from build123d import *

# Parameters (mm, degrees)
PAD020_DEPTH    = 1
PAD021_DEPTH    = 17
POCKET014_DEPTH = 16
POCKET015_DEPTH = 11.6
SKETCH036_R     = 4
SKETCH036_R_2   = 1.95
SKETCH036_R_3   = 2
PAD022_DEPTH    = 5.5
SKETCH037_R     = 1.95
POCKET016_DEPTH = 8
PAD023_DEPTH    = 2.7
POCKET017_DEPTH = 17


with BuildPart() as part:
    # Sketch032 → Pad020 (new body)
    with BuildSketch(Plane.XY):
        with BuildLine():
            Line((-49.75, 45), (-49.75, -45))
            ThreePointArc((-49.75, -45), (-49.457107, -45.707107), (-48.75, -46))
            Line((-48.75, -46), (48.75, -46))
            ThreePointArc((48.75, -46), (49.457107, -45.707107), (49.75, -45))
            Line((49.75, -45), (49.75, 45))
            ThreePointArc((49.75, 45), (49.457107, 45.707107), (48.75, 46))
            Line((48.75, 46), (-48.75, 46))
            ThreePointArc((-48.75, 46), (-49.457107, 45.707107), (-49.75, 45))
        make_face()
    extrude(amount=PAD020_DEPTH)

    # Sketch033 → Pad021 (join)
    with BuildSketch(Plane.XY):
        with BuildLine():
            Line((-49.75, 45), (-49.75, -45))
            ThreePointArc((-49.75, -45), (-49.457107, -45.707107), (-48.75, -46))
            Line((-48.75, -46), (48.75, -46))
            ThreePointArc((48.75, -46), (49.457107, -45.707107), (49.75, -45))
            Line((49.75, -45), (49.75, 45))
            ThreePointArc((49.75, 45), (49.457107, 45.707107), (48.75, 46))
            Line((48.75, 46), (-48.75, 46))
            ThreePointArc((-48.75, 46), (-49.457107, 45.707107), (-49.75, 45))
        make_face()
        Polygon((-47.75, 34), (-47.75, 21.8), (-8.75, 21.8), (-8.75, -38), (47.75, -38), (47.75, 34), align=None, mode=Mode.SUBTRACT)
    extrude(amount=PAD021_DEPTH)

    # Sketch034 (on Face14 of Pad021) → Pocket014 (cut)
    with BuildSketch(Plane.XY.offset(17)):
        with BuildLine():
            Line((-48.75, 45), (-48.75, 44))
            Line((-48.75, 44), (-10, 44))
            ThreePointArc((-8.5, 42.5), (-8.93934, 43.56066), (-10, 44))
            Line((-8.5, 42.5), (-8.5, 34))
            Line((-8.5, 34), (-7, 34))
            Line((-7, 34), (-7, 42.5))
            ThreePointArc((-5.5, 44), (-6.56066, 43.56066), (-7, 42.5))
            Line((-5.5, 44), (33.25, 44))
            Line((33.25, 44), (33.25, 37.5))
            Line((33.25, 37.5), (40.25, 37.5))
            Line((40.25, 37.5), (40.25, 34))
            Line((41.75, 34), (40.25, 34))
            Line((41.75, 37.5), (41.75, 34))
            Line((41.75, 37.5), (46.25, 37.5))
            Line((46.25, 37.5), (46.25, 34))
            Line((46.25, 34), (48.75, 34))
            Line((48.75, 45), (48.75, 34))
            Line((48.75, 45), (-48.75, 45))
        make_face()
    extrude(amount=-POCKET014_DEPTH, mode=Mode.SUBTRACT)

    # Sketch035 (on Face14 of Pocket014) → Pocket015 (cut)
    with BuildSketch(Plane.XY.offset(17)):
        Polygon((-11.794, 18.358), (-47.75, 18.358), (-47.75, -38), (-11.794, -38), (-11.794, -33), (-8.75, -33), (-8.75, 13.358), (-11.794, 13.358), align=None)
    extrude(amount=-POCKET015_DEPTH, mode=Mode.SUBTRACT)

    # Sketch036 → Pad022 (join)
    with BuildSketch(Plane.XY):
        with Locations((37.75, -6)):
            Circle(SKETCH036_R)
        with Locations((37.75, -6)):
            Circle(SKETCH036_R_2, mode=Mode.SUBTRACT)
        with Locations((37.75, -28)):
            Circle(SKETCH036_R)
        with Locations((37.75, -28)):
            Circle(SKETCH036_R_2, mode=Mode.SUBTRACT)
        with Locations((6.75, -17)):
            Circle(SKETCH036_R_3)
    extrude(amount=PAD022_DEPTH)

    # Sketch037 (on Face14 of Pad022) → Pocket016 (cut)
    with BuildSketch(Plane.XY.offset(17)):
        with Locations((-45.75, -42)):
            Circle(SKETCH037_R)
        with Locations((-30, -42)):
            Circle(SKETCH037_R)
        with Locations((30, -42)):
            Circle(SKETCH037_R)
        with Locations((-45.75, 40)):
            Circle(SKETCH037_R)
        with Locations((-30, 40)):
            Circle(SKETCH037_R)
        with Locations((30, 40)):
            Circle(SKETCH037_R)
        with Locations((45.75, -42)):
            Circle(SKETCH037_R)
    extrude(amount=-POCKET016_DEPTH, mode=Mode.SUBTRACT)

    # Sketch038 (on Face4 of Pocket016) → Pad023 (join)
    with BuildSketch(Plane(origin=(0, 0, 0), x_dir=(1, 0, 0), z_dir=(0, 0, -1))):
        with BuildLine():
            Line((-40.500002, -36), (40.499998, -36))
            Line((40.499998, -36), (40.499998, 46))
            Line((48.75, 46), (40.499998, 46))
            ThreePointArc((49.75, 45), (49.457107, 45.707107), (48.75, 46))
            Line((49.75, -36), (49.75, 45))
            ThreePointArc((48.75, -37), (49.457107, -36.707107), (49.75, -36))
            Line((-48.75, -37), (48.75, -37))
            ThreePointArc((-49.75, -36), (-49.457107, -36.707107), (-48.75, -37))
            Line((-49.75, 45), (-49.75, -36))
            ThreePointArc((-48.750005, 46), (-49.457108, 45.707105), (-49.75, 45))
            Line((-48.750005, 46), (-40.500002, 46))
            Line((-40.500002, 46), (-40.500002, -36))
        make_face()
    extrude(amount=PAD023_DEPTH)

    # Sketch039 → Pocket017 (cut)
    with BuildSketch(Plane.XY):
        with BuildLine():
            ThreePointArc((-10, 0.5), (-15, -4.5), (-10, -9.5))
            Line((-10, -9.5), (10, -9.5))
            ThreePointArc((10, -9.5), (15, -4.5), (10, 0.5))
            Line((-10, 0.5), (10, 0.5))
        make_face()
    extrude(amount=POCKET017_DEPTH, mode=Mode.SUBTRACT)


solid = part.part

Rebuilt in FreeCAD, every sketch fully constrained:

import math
import FreeCAD as App
import Part
import Sketcher
Q = App.Units.Quantity

doc = App.newDocument("Part")
body = doc.addObject("PartDesign::Body", "Body")

sketch1 = doc.addObject("Sketcher::SketchObject", "Sketch")
body.addObject(sketch1)
sketch1.AttachmentSupport = (doc.XY_Plane, [""])
sketch1.MapMode = "FlatFace"
sketch1.addGeometry([
    Part.LineSegment(App.Vector(-49.75, 45, 0), App.Vector(-49.75, -45, 0)),
    Part.ArcOfCircle(Part.Circle(App.Vector(-48.750001, -45.000001, 0), App.Vector(0, 0, 1), 0.999999), math.radians(179.999957), math.radians(270.000043)),
    Part.LineSegment(App.Vector(-48.75, -46, 0), App.Vector(48.75, -46, 0)),
    Part.ArcOfCircle(Part.Circle(App.Vector(48.750001, -45.000001, 0), App.Vector(0, 0, 1), 0.999999), math.radians(-90.000043), math.radians(0.000043)),
    Part.LineSegment(App.Vector(49.75, -45, 0), App.Vector(49.75, 45, 0)),
    Part.ArcOfCircle(Part.Circle(App.Vector(48.750001, 45.000001, 0), App.Vector(0, 0, 1), 0.999999), math.radians(-0.000043), math.radians(90.000043)),
    Part.LineSegment(App.Vector(48.75, 46, 0), App.Vector(-48.75, 46, 0)),
    Part.ArcOfCircle(Part.Circle(App.Vector(-48.750001, 45.000001, 0), App.Vector(0, 0, 1), 0.999999), math.radians(89.999957), math.radians(180.000043)),
], False)
sketch1.addConstraint([
    Sketcher.Constraint("Tangent", 0, 2, 1, 1),
    Sketcher.Constraint("Tangent", 1, 2, 2, 1),
    Sketcher.Constraint("Tangent", 2, 2, 3, 1),
    Sketcher.Constraint("Tangent", 3, 2, 4, 1),
    Sketcher.Constraint("Tangent", 4, 2, 5, 1),
    Sketcher.Constraint("Tangent", 5, 2, 6, 1),
    Sketcher.Constraint("Tangent", 6, 2, 7, 1),
    Sketcher.Constraint("Tangent", 7, 2, 0, 1),
    Sketcher.Constraint("Vertical", 0),
    Sketcher.Constraint("Horizontal", 2),
    Sketcher.Constraint("Vertical", 4),
    Sketcher.Constraint("Horizontal", 6),
    Sketcher.Constraint("Equal", 1, 3),
    Sketcher.Constraint("Equal", 3, 5),
    Sketcher.Constraint("Equal", 5, 7),
    Sketcher.Constraint("Symmetric", 1, 3, 5, 3, -1, 1),
    Sketcher.Constraint("Radius", 1, Q("0.999999 mm")),
    Sketcher.Constraint("DistanceY", 0, 2, 0, 1, Q("90 mm")),
    Sketcher.Constraint("DistanceX", 2, 1, 2, 2, Q("97.5 mm")),
])
pad1 = doc.addObject("PartDesign::Pad", "Pad")
body.addObject(pad1)
pad1.Profile = sketch1
pad1.Length = 1

sketch2 = doc.addObject("Sketcher::SketchObject", "Sketch001")
body.addObject(sketch2)
sketch2.AttachmentSupport = (doc.XY_Plane, [""])
sketch2.MapMode = "FlatFace"
sketch2.addGeometry([
    Part.LineSegment(App.Vector(-49.75, 45, 0), App.Vector(-49.75, -45, 0)),
    Part.ArcOfCircle(Part.Circle(App.Vector(-48.750001, -45.000001, 0), App.Vector(0, 0, 1), 0.999999), math.radians(179.999957), math.radians(270.000043)),
    Part.LineSegment(App.Vector(-48.75, -46, 0), App.Vector(48.75, -46, 0)),
    Part.ArcOfCircle(Part.Circle(App.Vector(48.750001, -45.000001, 0), App.Vector(0, 0, 1), 0.999999), math.radians(-90.000043), math.radians(0.000043)),
    Part.LineSegment(App.Vector(49.75, -45, 0), App.Vector(49.75, 45, 0)),
    Part.ArcOfCircle(Part.Circle(App.Vector(48.750001, 45.000001, 0), App.Vector(0, 0, 1), 0.999999), math.radians(-0.000043), math.radians(90.000043)),
    Part.LineSegment(App.Vector(48.75, 46, 0), App.Vector(-48.75, 46, 0)),
    Part.ArcOfCircle(Part.Circle(App.Vector(-48.750001, 45.000001, 0), App.Vector(0, 0, 1), 0.999999), math.radians(89.999957), math.radians(180.000043)),
    Part.LineSegment(App.Vector(-47.75, 21.8, 0), App.Vector(-47.75, 34, 0)),
    Part.LineSegment(App.Vector(-47.75, 34, 0), App.Vector(47.75, 34, 0)),
    Part.LineSegment(App.Vector(47.75, 34, 0), App.Vector(47.75, -38, 0)),
    Part.LineSegment(App.Vector(47.75, -38, 0), App.Vector(-8.75, -38, 0)),
    Part.LineSegment(App.Vector(-8.75, -38, 0), App.Vector(-8.75, 21.8, 0)),
    Part.LineSegment(App.Vector(-8.75, 21.8, 0), App.Vector(-47.75, 21.8, 0)),
], False)
sketch2.addConstraint([
    Sketcher.Constraint("Tangent", 0, 2, 1, 1),
    Sketcher.Constraint("Tangent", 1, 2, 2, 1),
    Sketcher.Constraint("Tangent", 2, 2, 3, 1),
    Sketcher.Constraint("Tangent", 3, 2, 4, 1),
    Sketcher.Constraint("Tangent", 4, 2, 5, 1),
    Sketcher.Constraint("Tangent", 5, 2, 6, 1),
    Sketcher.Constraint("Tangent", 6, 2, 7, 1),
    Sketcher.Constraint("Tangent", 7, 2, 0, 1),
    Sketcher.Constraint("Coincident", 8, 2, 9, 1),
    Sketcher.Constraint("Coincident", 9, 2, 10, 1),
    Sketcher.Constraint("Coincident", 10, 2, 11, 1),
    Sketcher.Constraint("Coincident", 11, 2, 12, 1),
    Sketcher.Constraint("Coincident", 12, 2, 13, 1),
    Sketcher.Constraint("Coincident", 13, 2, 8, 1),
    Sketcher.Constraint("Vertical", 0),
    Sketcher.Constraint("Horizontal", 2),
    Sketcher.Constraint("Vertical", 4),
    Sketcher.Constraint("Horizontal", 6),
    Sketcher.Constraint("Vertical", 8),
    Sketcher.Constraint("Horizontal", 9),
    Sketcher.Constraint("Vertical", 10),
    Sketcher.Constraint("Horizontal", 11),
    Sketcher.Constraint("Vertical", 12),
    Sketcher.Constraint("Horizontal", 13),
    Sketcher.Constraint("Equal", 1, 3),
    Sketcher.Constraint("Equal", 3, 5),
    Sketcher.Constraint("Equal", 5, 7),
    Sketcher.Constraint("Symmetric", 1, 3, 5, 3, -1, 1),
    Sketcher.Constraint("Radius", 1, Q("0.999999 mm")),
    Sketcher.Constraint("DistanceX", 13, 2, 13, 1, Q("39 mm")),
    Sketcher.Constraint("DistanceY", 0, 2, 0, 1, Q("90 mm")),
    Sketcher.Constraint("DistanceY", 10, 2, 10, 1, Q("72 mm")),
    Sketcher.Constraint("DistanceX", 2, 1, 2, 2, Q("97.5 mm")),
    Sketcher.Constraint("DistanceX", 9, 1, 9, 2, Q("95.5 mm")),
    Sketcher.Constraint("DistanceY", 8, 1, 8, 2, Q("12.2 mm")),
    Sketcher.Constraint("DistanceY", -1, 1, 8, 2, Q("34 mm")),
    Sketcher.Constraint("DistanceX", 7, 3, 8, 2, Q("1.000001 mm")),
])
pad2 = doc.addObject("PartDesign::Pad", "Pad001")
body.addObject(pad2)
pad2.Profile = sketch2
pad2.Length = 17

sketch3 = doc.addObject("Sketcher::SketchObject", "Sketch002")
body.addObject(sketch3)
sketch3.AttachmentSupport = (doc.XY_Plane, [""])
sketch3.MapMode = "FlatFace"
sketch3.AttachmentOffset = App.Placement(App.Vector(0, 0, 17), App.Rotation())
sketch3.addGeometry([
    Part.LineSegment(App.Vector(-48.75, 45, 0), App.Vector(-48.75, 44, 0)),
    Part.LineSegment(App.Vector(-48.75, 44, 0), App.Vector(-10, 44, 0)),
    Part.ArcOfCircle(Part.Circle(App.Vector(-10.000001, 42.499999, 0), App.Vector(0, 0, 1), 1.500001), math.radians(0.000022), math.radians(89.999978)),
    Part.LineSegment(App.Vector(-8.5, 42.5, 0), App.Vector(-8.5, 34, 0)),
    Part.LineSegment(App.Vector(-8.5, 34, 0), App.Vector(-7, 34, 0)),
    Part.LineSegment(App.Vector(-7, 34, 0), App.Vector(-7, 42.5, 0)),
    Part.ArcOfCircle(Part.Circle(App.Vector(-5.499999, 42.499999, 0), App.Vector(0, 0, 1), 1.500001), math.radians(90.000022), math.radians(179.999978)),
    Part.LineSegment(App.Vector(-5.5, 44, 0), App.Vector(33.25, 44, 0)),
    Part.LineSegment(App.Vector(33.25, 44, 0), App.Vector(33.25, 37.5, 0)),
    Part.LineSegment(App.Vector(33.25, 37.5, 0), App.Vector(40.25, 37.5, 0)),
    Part.LineSegment(App.Vector(40.25, 37.5, 0), App.Vector(40.25, 34, 0)),
    Part.LineSegment(App.Vector(40.25, 34, 0), App.Vector(41.75, 34, 0)),
    Part.LineSegment(App.Vector(41.75, 34, 0), App.Vector(41.75, 37.5, 0)),
    Part.LineSegment(App.Vector(41.75, 37.5, 0), App.Vector(46.25, 37.5, 0)),
    Part.LineSegment(App.Vector(46.25, 37.5, 0), App.Vector(46.25, 34, 0)),
    Part.LineSegment(App.Vector(46.25, 34, 0), App.Vector(48.75, 34, 0)),
    Part.LineSegment(App.Vector(48.75, 34, 0), App.Vector(48.75, 45, 0)),
    Part.LineSegment(App.Vector(48.75, 45, 0), App.Vector(-48.75, 45, 0)),
], False)
sketch3.addConstraint([
    Sketcher.Constraint("Coincident", 0, 2, 1, 1),
    Sketcher.Constraint("Tangent", 1, 2, 2, 2),
    Sketcher.Constraint("Tangent", 2, 1, 3, 1),
    Sketcher.Constraint("Coincident", 3, 2, 4, 1),
    Sketcher.Constraint("Coincident", 4, 2, 5, 1),
    Sketcher.Constraint("Tangent", 5, 2, 6, 2),
    Sketcher.Constraint("Tangent", 6, 1, 7, 1),
    Sketcher.Constraint("Coincident", 7, 2, 8, 1),
    Sketcher.Constraint("Coincident", 8, 2, 9, 1),
    Sketcher.Constraint("Coincident", 9, 2, 10, 1),
    Sketcher.Constraint("Coincident", 10, 2, 11, 1),
    Sketcher.Constraint("Coincident", 11, 2, 12, 1),
    Sketcher.Constraint("Coincident", 12, 2, 13, 1),
    Sketcher.Constraint("Coincident", 13, 2, 14, 1),
    Sketcher.Constraint("Coincident", 14, 2, 15, 1),
    Sketcher.Constraint("Coincident", 15, 2, 16, 1),
    Sketcher.Constraint("Coincident", 16, 2, 17, 1),
    Sketcher.Constraint("Coincident", 17, 2, 0, 1),
    Sketcher.Constraint("Vertical", 0),
    Sketcher.Constraint("Horizontal", 1),
    Sketcher.Constraint("Vertical", 3),
    Sketcher.Constraint("Horizontal", 4),
    Sketcher.Constraint("Vertical", 5),
    Sketcher.Constraint("Horizontal", 7),
    Sketcher.Constraint("Vertical", 8),
    Sketcher.Constraint("Horizontal", 9),
    Sketcher.Constraint("Vertical", 10),
    Sketcher.Constraint("Horizontal", 11),
    Sketcher.Constraint("Vertical", 12),
    Sketcher.Constraint("Horizontal", 13),
    Sketcher.Constraint("Vertical", 14),
    Sketcher.Constraint("Horizontal", 15),
    Sketcher.Constraint("Vertical", 16),
    Sketcher.Constraint("Horizontal", 17),
    Sketcher.Constraint("Equal", 2, 6),
    Sketcher.Constraint("Horizontal", 2, 3, 6, 3),
    Sketcher.Constraint("Horizontal", 4, 2, 10, 2),
    Sketcher.Constraint("Horizontal", 9, 2, 12, 2),
    Sketcher.Constraint("Horizontal", 11, 2, 14, 2),
    Sketcher.Constraint("Equal", 1, 7),
    Sketcher.Constraint("Equal", 4, 11),
    Sketcher.Constraint("Radius", 2, Q("1.500001 mm")),
    Sketcher.Constraint("DistanceX", 9, 1, 9, 2, Q("7 mm")),
    Sketcher.Constraint("DistanceY", 0, 2, 0, 1, Q("1 mm")),
    Sketcher.Constraint("DistanceY", 16, 1, 16, 2, Q("11 mm")),
    Sketcher.Constraint("DistanceX", 4, 1, 4, 2, Q("1.5 mm")),
    Sketcher.Constraint("DistanceX", 13, 1, 13, 2, Q("4.5 mm")),
    Sketcher.Constraint("DistanceX", 15, 1, 15, 2, Q("2.5 mm")),
    Sketcher.Constraint("DistanceX", 17, 2, 17, 1, Q("97.5 mm")),
    Sketcher.Constraint("DistanceY", 8, 2, 8, 1, Q("6.5 mm")),
    Sketcher.Constraint("DistanceX", 2, 3, -1, 1, Q("10.000001 mm")),
    Sketcher.Constraint("DistanceY", -1, 1, 0, 2, Q("44 mm")),
])
pocket1 = doc.addObject("PartDesign::Pocket", "Pocket")
body.addObject(pocket1)
pocket1.Profile = sketch3
pocket1.Length = 16

sketch4 = doc.addObject("Sketcher::SketchObject", "Sketch003")
body.addObject(sketch4)
sketch4.AttachmentSupport = (doc.XY_Plane, [""])
sketch4.MapMode = "FlatFace"
sketch4.AttachmentOffset = App.Placement(App.Vector(0, 0, 17), App.Rotation())
sketch4.addGeometry([
    Part.LineSegment(App.Vector(-11.794, 18.358, 0), App.Vector(-47.75, 18.358, 0)),
    Part.LineSegment(App.Vector(-47.75, 18.358, 0), App.Vector(-47.75, -38, 0)),
    Part.LineSegment(App.Vector(-47.75, -38, 0), App.Vector(-11.794, -38, 0)),
    Part.LineSegment(App.Vector(-11.794, -38, 0), App.Vector(-11.794, -33, 0)),
    Part.LineSegment(App.Vector(-11.794, -33, 0), App.Vector(-8.75, -33, 0)),
    Part.LineSegment(App.Vector(-8.75, -33, 0), App.Vector(-8.75, 13.358, 0)),
    Part.LineSegment(App.Vector(-8.75, 13.358, 0), App.Vector(-11.794, 13.358, 0)),
    Part.LineSegment(App.Vector(-11.794, 13.358, 0), App.Vector(-11.794, 18.358, 0)),
], False)
sketch4.addConstraint([
    Sketcher.Constraint("Coincident", 0, 2, 1, 1),
    Sketcher.Constraint("Coincident", 1, 2, 2, 1),
    Sketcher.Constraint("Coincident", 2, 2, 3, 1),
    Sketcher.Constraint("Coincident", 3, 2, 4, 1),
    Sketcher.Constraint("Coincident", 4, 2, 5, 1),
    Sketcher.Constraint("Coincident", 5, 2, 6, 1),
    Sketcher.Constraint("Coincident", 6, 2, 7, 1),
    Sketcher.Constraint("Coincident", 7, 2, 0, 1),
    Sketcher.Constraint("Horizontal", 0),
    Sketcher.Constraint("Vertical", 1),
    Sketcher.Constraint("Horizontal", 2),
    Sketcher.Constraint("Vertical", 3),
    Sketcher.Constraint("Horizontal", 4),
    Sketcher.Constraint("Vertical", 5),
    Sketcher.Constraint("Horizontal", 6),
    Sketcher.Constraint("Vertical", 7),
    Sketcher.Constraint("Vertical", 3, 2, 6, 2),
    Sketcher.Constraint("Equal", 3, 7),
    Sketcher.Constraint("DistanceY", 3, 1, 3, 2, Q("5 mm")),
    Sketcher.Constraint("DistanceY", 1, 2, -1, 1, Q("38 mm")),
    Sketcher.Constraint("DistanceX", 1, 2, 4, 2, Q("39 mm")),
    Sketcher.Constraint("DistanceX", 0, 2, 0, 1, Q("35.956 mm")),
    Sketcher.Constraint("DistanceY", 1, 2, 1, 1, Q("56.358 mm")),
    Sketcher.Constraint("DistanceX", 0, 2, -1, 1, Q("47.75 mm")),
])
pocket2 = doc.addObject("PartDesign::Pocket", "Pocket001")
body.addObject(pocket2)
pocket2.Profile = sketch4
pocket2.Length = 11.6

sketch5 = doc.addObject("Sketcher::SketchObject", "Sketch004")
body.addObject(sketch5)
sketch5.AttachmentSupport = (doc.XY_Plane, [""])
sketch5.MapMode = "FlatFace"
sketch5.addGeometry([
    Part.Circle(App.Vector(37.75, -6, 0), App.Vector(0, 0, 1), 4),
    Part.Circle(App.Vector(37.75, -6, 0), App.Vector(0, 0, 1), 1.95),
    Part.Circle(App.Vector(37.75, -28, 0), App.Vector(0, 0, 1), 4),
    Part.Circle(App.Vector(37.75, -28, 0), App.Vector(0, 0, 1), 1.95),
    Part.Circle(App.Vector(6.75, -17, 0), App.Vector(0, 0, 1), 2),
], False)
sketch5.addConstraint([
    Sketcher.Constraint("Coincident", 1, 3, 0, 3),
    Sketcher.Constraint("Coincident", 3, 3, 2, 3),
    Sketcher.Constraint("Equal", 0, 2),
    Sketcher.Constraint("Equal", 1, 3),
    Sketcher.Constraint("Vertical", 1, 3, 2, 3),
    Sketcher.Constraint("Diameter", 0, Q("8 mm")),
    Sketcher.Constraint("Diameter", 4, Q("4 mm")),
    Sketcher.Constraint("Diameter", 1, Q("3.9 mm")),
    Sketcher.Constraint("DistanceY", 0, 3, -1, 1, Q("6 mm")),
    Sketcher.Constraint("DistanceY", 2, 3, -1, 1, Q("28 mm")),
    Sketcher.Constraint("DistanceY", 4, 3, -1, 1, Q("17 mm")),
    Sketcher.Constraint("DistanceX", 4, 3, 0, 3, Q("31 mm")),
    Sketcher.Constraint("DistanceX", -1, 1, 0, 3, Q("37.75 mm")),
])
pad3 = doc.addObject("PartDesign::Pad", "Pad002")
body.addObject(pad3)
pad3.Profile = sketch5
pad3.Length = 5.5

sketch6 = doc.addObject("Sketcher::SketchObject", "Sketch005")
body.addObject(sketch6)
sketch6.AttachmentSupport = (doc.XY_Plane, [""])
sketch6.MapMode = "FlatFace"
sketch6.AttachmentOffset = App.Placement(App.Vector(0, 0, 17), App.Rotation())
sketch6.addGeometry([
    Part.Circle(App.Vector(-45.75, -42, 0), App.Vector(0, 0, 1), 1.95),
    Part.Circle(App.Vector(-30, -42, 0), App.Vector(0, 0, 1), 1.95),
    Part.Circle(App.Vector(30, -42, 0), App.Vector(0, 0, 1), 1.95),
    Part.Circle(App.Vector(-45.75, 40, 0), App.Vector(0, 0, 1), 1.95),
    Part.Circle(App.Vector(-30, 40, 0), App.Vector(0, 0, 1), 1.95),
    Part.Circle(App.Vector(30, 40, 0), App.Vector(0, 0, 1), 1.95),
    Part.Circle(App.Vector(45.75, -42, 0), App.Vector(0, 0, 1), 1.95),
], False)
sketch6.addConstraint([
    Sketcher.Constraint("Equal", 0, 1),
    Sketcher.Constraint("Equal", 1, 2),
    Sketcher.Constraint("Equal", 2, 3),
    Sketcher.Constraint("Equal", 3, 4),
    Sketcher.Constraint("Equal", 4, 5),
    Sketcher.Constraint("Equal", 5, 6),
    Sketcher.Constraint("Symmetric", 1, 3, 2, 3, -2),
    Sketcher.Constraint("Symmetric", 4, 3, 5, 3, -2),
    Sketcher.Constraint("Symmetric", 0, 3, 6, 3, -2),
    Sketcher.Constraint("Horizontal", 0, 3, 1, 3),
    Sketcher.Constraint("Horizontal", 3, 3, 4, 3),
    Sketcher.Constraint("Vertical", 0, 3, 3, 3),
    Sketcher.Constraint("Vertical", 1, 3, 4, 3),
    Sketcher.Constraint("Diameter", 0, Q("3.9 mm")),
    Sketcher.Constraint("DistanceY", 0, 3, -1, 1, Q("42 mm")),
    Sketcher.Constraint("DistanceX", 1, 3, -1, 1, Q("30 mm")),
    Sketcher.Constraint("DistanceY", -1, 1, 3, 3, Q("40 mm")),
    Sketcher.Constraint("DistanceX", 0, 3, 6, 3, Q("91.5 mm")),
])
pocket3 = doc.addObject("PartDesign::Pocket", "Pocket002")
body.addObject(pocket3)
pocket3.Profile = sketch6
pocket3.Length = 8

sketch7 = doc.addObject("Sketcher::SketchObject", "Sketch006")
body.addObject(sketch7)
sketch7.AttachmentSupport = (doc.XY_Plane, [""])
sketch7.MapMode = "FlatFace"
sketch7.addGeometry([
    Part.LineSegment(App.Vector(40.499998, 36, 0), App.Vector(-40.500002, 36, 0)),
    Part.LineSegment(App.Vector(-40.500002, 36, 0), App.Vector(-40.500002, -46, 0)),
    Part.LineSegment(App.Vector(-40.500002, -46, 0), App.Vector(-48.750005, -46, 0)),
    Part.ArcOfCircle(Part.Circle(App.Vector(-48.749999, -44.999999, 0), App.Vector(0, 0, 1), 1.000001), math.radians(-179.999945), math.radians(-90.000341)),
    Part.LineSegment(App.Vector(-49.75, -45, 0), App.Vector(-49.75, 36, 0)),
    Part.ArcOfCircle(Part.Circle(App.Vector(-48.750001, 36.000001, 0), App.Vector(0, 0, 1), 0.999999), math.radians(89.999957), math.radians(180.000043)),
    Part.LineSegment(App.Vector(-48.75, 37, 0), App.Vector(48.75, 37, 0)),
    Part.ArcOfCircle(Part.Circle(App.Vector(48.750001, 36.000001, 0), App.Vector(0, 0, 1), 0.999999), math.radians(-0.000043), math.radians(90.000043)),
    Part.LineSegment(App.Vector(49.75, 36, 0), App.Vector(49.75, -45, 0)),
    Part.ArcOfCircle(Part.Circle(App.Vector(48.750001, -45.000001, 0), App.Vector(0, 0, 1), 0.999999), math.radians(-90.000043), math.radians(0.000043)),
    Part.LineSegment(App.Vector(48.75, -46, 0), App.Vector(40.499998, -46, 0)),
    Part.LineSegment(App.Vector(40.499998, -46, 0), App.Vector(40.499998, 36, 0)),
], False)
sketch7.addConstraint([
    Sketcher.Constraint("Coincident", 0, 2, 1, 1),
    Sketcher.Constraint("Coincident", 1, 2, 2, 1),
    Sketcher.Constraint("Coincident", 2, 2, 3, 2),
    Sketcher.Constraint("Tangent", 3, 1, 4, 1),
    Sketcher.Constraint("Tangent", 4, 2, 5, 2),
    Sketcher.Constraint("Tangent", 5, 1, 6, 1),
    Sketcher.Constraint("Tangent", 6, 2, 7, 2),
    Sketcher.Constraint("Tangent", 7, 1, 8, 1),
    Sketcher.Constraint("Tangent", 8, 2, 9, 2),
    Sketcher.Constraint("Tangent", 9, 1, 10, 1),
    Sketcher.Constraint("Coincident", 10, 2, 11, 1),
    Sketcher.Constraint("Coincident", 11, 2, 0, 1),
    Sketcher.Constraint("Horizontal", 0),
    Sketcher.Constraint("Vertical", 1),
    Sketcher.Constraint("Horizontal", 2),
    Sketcher.Constraint("Vertical", 4),
    Sketcher.Constraint("Horizontal", 6),
    Sketcher.Constraint("Vertical", 8),
    Sketcher.Constraint("Horizontal", 10),
    Sketcher.Constraint("Vertical", 11),
    Sketcher.Constraint("Equal", 3, 5),
    Sketcher.Constraint("Equal", 5, 7),
    Sketcher.Constraint("Equal", 7, 9),
    Sketcher.Constraint("Symmetric", 3, 3, 9, 3, -2),
    Sketcher.Constraint("Horizontal", 7, 3, 0, 2),
    Sketcher.Constraint("Equal", 2, 10),
    Sketcher.Constraint("Equal", 0, 4),
    Sketcher.Constraint("Radius", 3, Q("1.000001 mm")),
    Sketcher.Constraint("DistanceX", 0, 2, 0, 1, Q("81 mm")),
    Sketcher.Constraint("DistanceX", 6, 1, 6, 2, Q("97.5 mm")),
    Sketcher.Constraint("DistanceY", 3, 3, -1, 1, Q("44.999999 mm")),
    Sketcher.Constraint("DistanceX", 5, 3, 0, 2, Q("8.249999 mm")),
])
pad4 = doc.addObject("PartDesign::Pad", "Pad003")
body.addObject(pad4)
pad4.Profile = sketch7
pad4.Length = 2.7
pad4.Reversed = True

sketch8 = doc.addObject("Sketcher::SketchObject", "Sketch007")
body.addObject(sketch8)
sketch8.AttachmentSupport = (doc.XY_Plane, [""])
sketch8.MapMode = "FlatFace"
sketch8.addGeometry([
    Part.ArcOfCircle(Part.Circle(App.Vector(-10, -4.5, 0), App.Vector(0, 0, 1), 5), math.radians(90), math.radians(270)),
    Part.LineSegment(App.Vector(-10, -9.5, 0), App.Vector(10, -9.5, 0)),
    Part.ArcOfCircle(Part.Circle(App.Vector(10, -4.5, 0), App.Vector(0, 0, 1), 5), math.radians(-90), math.radians(90)),
    Part.LineSegment(App.Vector(10, 0.5, 0), App.Vector(-10, 0.5, 0)),
], False)
sketch8.addConstraint([
    Sketcher.Constraint("Tangent", 0, 2, 1, 1),
    Sketcher.Constraint("Tangent", 1, 2, 2, 1),
    Sketcher.Constraint("Tangent", 2, 2, 3, 1),
    Sketcher.Constraint("Tangent", 3, 2, 0, 1),
    Sketcher.Constraint("Horizontal", 1),
    Sketcher.Constraint("Horizontal", 3),
    Sketcher.Constraint("Radius", 0, Q("5 mm")),
    Sketcher.Constraint("DistanceX", 1, 1, 1, 2, Q("20 mm")),
    Sketcher.Constraint("DistanceX", 0, 3, -1, 1, Q("10 mm")),
    Sketcher.Constraint("DistanceY", 0, 3, -1, 1, Q("4.5 mm")),
])
pocket4 = doc.addObject("PartDesign::Pocket", "Pocket003")
body.addObject(pocket4)
pocket4.Profile = sketch8
pocket4.Length = 17
pocket4.Reversed = True

doc.recompute()
